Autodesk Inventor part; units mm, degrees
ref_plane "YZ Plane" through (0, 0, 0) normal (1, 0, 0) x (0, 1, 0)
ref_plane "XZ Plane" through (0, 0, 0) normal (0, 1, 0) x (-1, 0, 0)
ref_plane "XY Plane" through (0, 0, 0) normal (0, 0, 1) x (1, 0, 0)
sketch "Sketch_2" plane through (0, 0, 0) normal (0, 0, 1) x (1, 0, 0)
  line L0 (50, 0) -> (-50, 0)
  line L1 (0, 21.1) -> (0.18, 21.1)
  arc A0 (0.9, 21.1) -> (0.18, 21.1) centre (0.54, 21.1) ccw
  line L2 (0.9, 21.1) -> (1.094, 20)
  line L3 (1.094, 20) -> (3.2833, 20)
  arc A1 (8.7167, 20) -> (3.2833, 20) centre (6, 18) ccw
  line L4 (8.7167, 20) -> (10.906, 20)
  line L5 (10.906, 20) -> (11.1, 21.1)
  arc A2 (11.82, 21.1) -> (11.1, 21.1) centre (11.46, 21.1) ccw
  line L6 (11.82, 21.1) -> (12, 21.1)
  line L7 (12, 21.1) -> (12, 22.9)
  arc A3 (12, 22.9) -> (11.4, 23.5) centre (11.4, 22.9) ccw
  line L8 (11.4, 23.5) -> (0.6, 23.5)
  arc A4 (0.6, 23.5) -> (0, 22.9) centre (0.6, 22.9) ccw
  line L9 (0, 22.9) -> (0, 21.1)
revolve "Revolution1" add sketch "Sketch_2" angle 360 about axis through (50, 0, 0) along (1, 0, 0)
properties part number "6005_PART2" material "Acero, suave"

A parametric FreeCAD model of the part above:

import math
import FreeCAD as App
import Part
import Sketcher

doc = App.newDocument("Part")
body = doc.addObject("PartDesign::Body", "Body")

# Sketch on XY plane
sketch1 = body.newObject("Sketcher::SketchObject", "Sketch")
sketch1.AttachmentSupport = (doc.getObject("XY_Plane"), [""])
sketch1.MapMode = "FlatFace"
sketch1.addGeometry([
    Part.LineSegment(App.Vector(0, 22.9, 0), App.Vector(0, 21.1, 0)),  # 0
    Part.LineSegment(App.Vector(0, 21.1, 0), App.Vector(0.18, 21.1, 0)),  # 1
    Part.ArcOfCircle(Part.Circle(App.Vector(0.54, 21.1, 0), App.Vector(0, 0, 1), 0.36), math.radians(0), math.radians(180)),  # 2
    Part.LineSegment(App.Vector(0.9, 21.1, 0), App.Vector(1.09, 20, 0)),  # 3
    Part.LineSegment(App.Vector(1.09, 20, 0), App.Vector(3.28, 20, 0)),  # 4
    Part.ArcOfCircle(Part.Circle(App.Vector(6, 18, 0), App.Vector(0, 0, 1), 3.37), math.radians(36), math.radians(144)),  # 5
    Part.LineSegment(App.Vector(8.72, 20, 0), App.Vector(10.91, 20, 0)),  # 6
    Part.LineSegment(App.Vector(10.91, 20, 0), App.Vector(11.1, 21.1, 0)),  # 7
    Part.ArcOfCircle(Part.Circle(App.Vector(11.46, 21.1, 0), App.Vector(0, 0, 1), 0.36), math.radians(0), math.radians(180)),  # 8
    Part.LineSegment(App.Vector(11.82, 21.1, 0), App.Vector(12, 21.1, 0)),  # 9
    Part.LineSegment(App.Vector(12, 21.1, 0), App.Vector(12, 22.9, 0)),  # 10
    Part.ArcOfCircle(Part.Circle(App.Vector(11.4, 22.9, 0), App.Vector(0, 0, 1), 0.6), math.radians(0), math.radians(90)),  # 11
    Part.LineSegment(App.Vector(11.4, 23.5, 0), App.Vector(0.6, 23.5, 0)),  # 12
    Part.ArcOfCircle(Part.Circle(App.Vector(0.6, 22.9, 0), App.Vector(0, 0, 1), 0.6), math.radians(90), math.radians(180)),  # 13
], False)
sketch1.addConstraint([
    Sketcher.Constraint("Coincident", 0, 2, 1, 1),
    Sketcher.Constraint("Coincident", 1, 2, 2, 2),
    Sketcher.Constraint("Coincident", 2, 1, 3, 1),
    Sketcher.Constraint("Coincident", 3, 2, 4, 1),
    Sketcher.Constraint("Coincident", 4, 2, 5, 2),
    Sketcher.Constraint("Coincident", 5, 1, 6, 1),
    Sketcher.Constraint("Coincident", 6, 2, 7, 1),
    Sketcher.Constraint("Coincident", 7, 2, 8, 2),
    Sketcher.Constraint("Coincident", 8, 1, 9, 1),
    Sketcher.Constraint("Coincident", 9, 2, 10, 1),
    Sketcher.Constraint("Tangent", 10, 2, 11, 1),
    Sketcher.Constraint("Tangent", 11, 2, 12, 1),
    Sketcher.Constraint("Tangent", 12, 2, 13, 1),
    Sketcher.Constraint("Tangent", 13, 2, 0, 1),
    Sketcher.Constraint("Vertical", 0),
    Sketcher.Constraint("Horizontal", 1),
    Sketcher.Constraint("Horizontal", 4),
    Sketcher.Constraint("Horizontal", 6),
    Sketcher.Constraint("Horizontal", 9),
    Sketcher.Constraint("Vertical", 10),
    Sketcher.Constraint("Horizontal", 12),
    Sketcher.Constraint("Equal", 2, 8),
    Sketcher.Constraint("Equal", 11, 13),
    Sketcher.Constraint("PointOnObject", 0, 2, -2),
    Sketcher.Constraint("Horizontal", 2, 3, 8, 3),
    Sketcher.Constraint("Horizontal", 8, 3, 0, 2),
    Sketcher.Constraint("Horizontal", 1, 2, 2, 1),
    Sketcher.Constraint("Horizontal", 4, 2, 5, 1),
    Sketcher.Constraint("Horizontal", 2, 1, 7, 2),
    Sketcher.Constraint("Horizontal", 7, 2, 8, 1),
    Sketcher.Constraint("Equal", 4, 6),
    Sketcher.Constraint("Equal", 1, 9),
    Sketcher.Constraint("Equal", 3, 7),
    Sketcher.Constraint("Radius", 11, 0.6),
    Sketcher.Constraint("Radius", 2, 0.36),
    Sketcher.Constraint("DistanceX", 12, 2, 12, 1, 10.8),
    Sketcher.Constraint("DistanceY", 0, 2, 0, 1, 1.8),
    Sketcher.Constraint("DistanceY", -1, 1, 5, 3, 18.0),
    Sketcher.Constraint("DistanceY", -1, 1, 3, 2, 20.0),
    Sketcher.Constraint("DistanceX", 1, 1, 1, 2, 0.18),
    Sketcher.Constraint("DistanceY", -1, 1, 2, 3, 21.1),
    Sketcher.Constraint("Radius", 5, 3.3735),
    Sketcher.Constraint("Distance", 3, 1.117),
])
revolution = body.newObject("PartDesign::Revolution", "Revolution")
revolution.Profile = sketch1
revolution.ReferenceAxis = (sketch1, ["H_Axis"])
revolution.Angle = 360

doc.recompute()
